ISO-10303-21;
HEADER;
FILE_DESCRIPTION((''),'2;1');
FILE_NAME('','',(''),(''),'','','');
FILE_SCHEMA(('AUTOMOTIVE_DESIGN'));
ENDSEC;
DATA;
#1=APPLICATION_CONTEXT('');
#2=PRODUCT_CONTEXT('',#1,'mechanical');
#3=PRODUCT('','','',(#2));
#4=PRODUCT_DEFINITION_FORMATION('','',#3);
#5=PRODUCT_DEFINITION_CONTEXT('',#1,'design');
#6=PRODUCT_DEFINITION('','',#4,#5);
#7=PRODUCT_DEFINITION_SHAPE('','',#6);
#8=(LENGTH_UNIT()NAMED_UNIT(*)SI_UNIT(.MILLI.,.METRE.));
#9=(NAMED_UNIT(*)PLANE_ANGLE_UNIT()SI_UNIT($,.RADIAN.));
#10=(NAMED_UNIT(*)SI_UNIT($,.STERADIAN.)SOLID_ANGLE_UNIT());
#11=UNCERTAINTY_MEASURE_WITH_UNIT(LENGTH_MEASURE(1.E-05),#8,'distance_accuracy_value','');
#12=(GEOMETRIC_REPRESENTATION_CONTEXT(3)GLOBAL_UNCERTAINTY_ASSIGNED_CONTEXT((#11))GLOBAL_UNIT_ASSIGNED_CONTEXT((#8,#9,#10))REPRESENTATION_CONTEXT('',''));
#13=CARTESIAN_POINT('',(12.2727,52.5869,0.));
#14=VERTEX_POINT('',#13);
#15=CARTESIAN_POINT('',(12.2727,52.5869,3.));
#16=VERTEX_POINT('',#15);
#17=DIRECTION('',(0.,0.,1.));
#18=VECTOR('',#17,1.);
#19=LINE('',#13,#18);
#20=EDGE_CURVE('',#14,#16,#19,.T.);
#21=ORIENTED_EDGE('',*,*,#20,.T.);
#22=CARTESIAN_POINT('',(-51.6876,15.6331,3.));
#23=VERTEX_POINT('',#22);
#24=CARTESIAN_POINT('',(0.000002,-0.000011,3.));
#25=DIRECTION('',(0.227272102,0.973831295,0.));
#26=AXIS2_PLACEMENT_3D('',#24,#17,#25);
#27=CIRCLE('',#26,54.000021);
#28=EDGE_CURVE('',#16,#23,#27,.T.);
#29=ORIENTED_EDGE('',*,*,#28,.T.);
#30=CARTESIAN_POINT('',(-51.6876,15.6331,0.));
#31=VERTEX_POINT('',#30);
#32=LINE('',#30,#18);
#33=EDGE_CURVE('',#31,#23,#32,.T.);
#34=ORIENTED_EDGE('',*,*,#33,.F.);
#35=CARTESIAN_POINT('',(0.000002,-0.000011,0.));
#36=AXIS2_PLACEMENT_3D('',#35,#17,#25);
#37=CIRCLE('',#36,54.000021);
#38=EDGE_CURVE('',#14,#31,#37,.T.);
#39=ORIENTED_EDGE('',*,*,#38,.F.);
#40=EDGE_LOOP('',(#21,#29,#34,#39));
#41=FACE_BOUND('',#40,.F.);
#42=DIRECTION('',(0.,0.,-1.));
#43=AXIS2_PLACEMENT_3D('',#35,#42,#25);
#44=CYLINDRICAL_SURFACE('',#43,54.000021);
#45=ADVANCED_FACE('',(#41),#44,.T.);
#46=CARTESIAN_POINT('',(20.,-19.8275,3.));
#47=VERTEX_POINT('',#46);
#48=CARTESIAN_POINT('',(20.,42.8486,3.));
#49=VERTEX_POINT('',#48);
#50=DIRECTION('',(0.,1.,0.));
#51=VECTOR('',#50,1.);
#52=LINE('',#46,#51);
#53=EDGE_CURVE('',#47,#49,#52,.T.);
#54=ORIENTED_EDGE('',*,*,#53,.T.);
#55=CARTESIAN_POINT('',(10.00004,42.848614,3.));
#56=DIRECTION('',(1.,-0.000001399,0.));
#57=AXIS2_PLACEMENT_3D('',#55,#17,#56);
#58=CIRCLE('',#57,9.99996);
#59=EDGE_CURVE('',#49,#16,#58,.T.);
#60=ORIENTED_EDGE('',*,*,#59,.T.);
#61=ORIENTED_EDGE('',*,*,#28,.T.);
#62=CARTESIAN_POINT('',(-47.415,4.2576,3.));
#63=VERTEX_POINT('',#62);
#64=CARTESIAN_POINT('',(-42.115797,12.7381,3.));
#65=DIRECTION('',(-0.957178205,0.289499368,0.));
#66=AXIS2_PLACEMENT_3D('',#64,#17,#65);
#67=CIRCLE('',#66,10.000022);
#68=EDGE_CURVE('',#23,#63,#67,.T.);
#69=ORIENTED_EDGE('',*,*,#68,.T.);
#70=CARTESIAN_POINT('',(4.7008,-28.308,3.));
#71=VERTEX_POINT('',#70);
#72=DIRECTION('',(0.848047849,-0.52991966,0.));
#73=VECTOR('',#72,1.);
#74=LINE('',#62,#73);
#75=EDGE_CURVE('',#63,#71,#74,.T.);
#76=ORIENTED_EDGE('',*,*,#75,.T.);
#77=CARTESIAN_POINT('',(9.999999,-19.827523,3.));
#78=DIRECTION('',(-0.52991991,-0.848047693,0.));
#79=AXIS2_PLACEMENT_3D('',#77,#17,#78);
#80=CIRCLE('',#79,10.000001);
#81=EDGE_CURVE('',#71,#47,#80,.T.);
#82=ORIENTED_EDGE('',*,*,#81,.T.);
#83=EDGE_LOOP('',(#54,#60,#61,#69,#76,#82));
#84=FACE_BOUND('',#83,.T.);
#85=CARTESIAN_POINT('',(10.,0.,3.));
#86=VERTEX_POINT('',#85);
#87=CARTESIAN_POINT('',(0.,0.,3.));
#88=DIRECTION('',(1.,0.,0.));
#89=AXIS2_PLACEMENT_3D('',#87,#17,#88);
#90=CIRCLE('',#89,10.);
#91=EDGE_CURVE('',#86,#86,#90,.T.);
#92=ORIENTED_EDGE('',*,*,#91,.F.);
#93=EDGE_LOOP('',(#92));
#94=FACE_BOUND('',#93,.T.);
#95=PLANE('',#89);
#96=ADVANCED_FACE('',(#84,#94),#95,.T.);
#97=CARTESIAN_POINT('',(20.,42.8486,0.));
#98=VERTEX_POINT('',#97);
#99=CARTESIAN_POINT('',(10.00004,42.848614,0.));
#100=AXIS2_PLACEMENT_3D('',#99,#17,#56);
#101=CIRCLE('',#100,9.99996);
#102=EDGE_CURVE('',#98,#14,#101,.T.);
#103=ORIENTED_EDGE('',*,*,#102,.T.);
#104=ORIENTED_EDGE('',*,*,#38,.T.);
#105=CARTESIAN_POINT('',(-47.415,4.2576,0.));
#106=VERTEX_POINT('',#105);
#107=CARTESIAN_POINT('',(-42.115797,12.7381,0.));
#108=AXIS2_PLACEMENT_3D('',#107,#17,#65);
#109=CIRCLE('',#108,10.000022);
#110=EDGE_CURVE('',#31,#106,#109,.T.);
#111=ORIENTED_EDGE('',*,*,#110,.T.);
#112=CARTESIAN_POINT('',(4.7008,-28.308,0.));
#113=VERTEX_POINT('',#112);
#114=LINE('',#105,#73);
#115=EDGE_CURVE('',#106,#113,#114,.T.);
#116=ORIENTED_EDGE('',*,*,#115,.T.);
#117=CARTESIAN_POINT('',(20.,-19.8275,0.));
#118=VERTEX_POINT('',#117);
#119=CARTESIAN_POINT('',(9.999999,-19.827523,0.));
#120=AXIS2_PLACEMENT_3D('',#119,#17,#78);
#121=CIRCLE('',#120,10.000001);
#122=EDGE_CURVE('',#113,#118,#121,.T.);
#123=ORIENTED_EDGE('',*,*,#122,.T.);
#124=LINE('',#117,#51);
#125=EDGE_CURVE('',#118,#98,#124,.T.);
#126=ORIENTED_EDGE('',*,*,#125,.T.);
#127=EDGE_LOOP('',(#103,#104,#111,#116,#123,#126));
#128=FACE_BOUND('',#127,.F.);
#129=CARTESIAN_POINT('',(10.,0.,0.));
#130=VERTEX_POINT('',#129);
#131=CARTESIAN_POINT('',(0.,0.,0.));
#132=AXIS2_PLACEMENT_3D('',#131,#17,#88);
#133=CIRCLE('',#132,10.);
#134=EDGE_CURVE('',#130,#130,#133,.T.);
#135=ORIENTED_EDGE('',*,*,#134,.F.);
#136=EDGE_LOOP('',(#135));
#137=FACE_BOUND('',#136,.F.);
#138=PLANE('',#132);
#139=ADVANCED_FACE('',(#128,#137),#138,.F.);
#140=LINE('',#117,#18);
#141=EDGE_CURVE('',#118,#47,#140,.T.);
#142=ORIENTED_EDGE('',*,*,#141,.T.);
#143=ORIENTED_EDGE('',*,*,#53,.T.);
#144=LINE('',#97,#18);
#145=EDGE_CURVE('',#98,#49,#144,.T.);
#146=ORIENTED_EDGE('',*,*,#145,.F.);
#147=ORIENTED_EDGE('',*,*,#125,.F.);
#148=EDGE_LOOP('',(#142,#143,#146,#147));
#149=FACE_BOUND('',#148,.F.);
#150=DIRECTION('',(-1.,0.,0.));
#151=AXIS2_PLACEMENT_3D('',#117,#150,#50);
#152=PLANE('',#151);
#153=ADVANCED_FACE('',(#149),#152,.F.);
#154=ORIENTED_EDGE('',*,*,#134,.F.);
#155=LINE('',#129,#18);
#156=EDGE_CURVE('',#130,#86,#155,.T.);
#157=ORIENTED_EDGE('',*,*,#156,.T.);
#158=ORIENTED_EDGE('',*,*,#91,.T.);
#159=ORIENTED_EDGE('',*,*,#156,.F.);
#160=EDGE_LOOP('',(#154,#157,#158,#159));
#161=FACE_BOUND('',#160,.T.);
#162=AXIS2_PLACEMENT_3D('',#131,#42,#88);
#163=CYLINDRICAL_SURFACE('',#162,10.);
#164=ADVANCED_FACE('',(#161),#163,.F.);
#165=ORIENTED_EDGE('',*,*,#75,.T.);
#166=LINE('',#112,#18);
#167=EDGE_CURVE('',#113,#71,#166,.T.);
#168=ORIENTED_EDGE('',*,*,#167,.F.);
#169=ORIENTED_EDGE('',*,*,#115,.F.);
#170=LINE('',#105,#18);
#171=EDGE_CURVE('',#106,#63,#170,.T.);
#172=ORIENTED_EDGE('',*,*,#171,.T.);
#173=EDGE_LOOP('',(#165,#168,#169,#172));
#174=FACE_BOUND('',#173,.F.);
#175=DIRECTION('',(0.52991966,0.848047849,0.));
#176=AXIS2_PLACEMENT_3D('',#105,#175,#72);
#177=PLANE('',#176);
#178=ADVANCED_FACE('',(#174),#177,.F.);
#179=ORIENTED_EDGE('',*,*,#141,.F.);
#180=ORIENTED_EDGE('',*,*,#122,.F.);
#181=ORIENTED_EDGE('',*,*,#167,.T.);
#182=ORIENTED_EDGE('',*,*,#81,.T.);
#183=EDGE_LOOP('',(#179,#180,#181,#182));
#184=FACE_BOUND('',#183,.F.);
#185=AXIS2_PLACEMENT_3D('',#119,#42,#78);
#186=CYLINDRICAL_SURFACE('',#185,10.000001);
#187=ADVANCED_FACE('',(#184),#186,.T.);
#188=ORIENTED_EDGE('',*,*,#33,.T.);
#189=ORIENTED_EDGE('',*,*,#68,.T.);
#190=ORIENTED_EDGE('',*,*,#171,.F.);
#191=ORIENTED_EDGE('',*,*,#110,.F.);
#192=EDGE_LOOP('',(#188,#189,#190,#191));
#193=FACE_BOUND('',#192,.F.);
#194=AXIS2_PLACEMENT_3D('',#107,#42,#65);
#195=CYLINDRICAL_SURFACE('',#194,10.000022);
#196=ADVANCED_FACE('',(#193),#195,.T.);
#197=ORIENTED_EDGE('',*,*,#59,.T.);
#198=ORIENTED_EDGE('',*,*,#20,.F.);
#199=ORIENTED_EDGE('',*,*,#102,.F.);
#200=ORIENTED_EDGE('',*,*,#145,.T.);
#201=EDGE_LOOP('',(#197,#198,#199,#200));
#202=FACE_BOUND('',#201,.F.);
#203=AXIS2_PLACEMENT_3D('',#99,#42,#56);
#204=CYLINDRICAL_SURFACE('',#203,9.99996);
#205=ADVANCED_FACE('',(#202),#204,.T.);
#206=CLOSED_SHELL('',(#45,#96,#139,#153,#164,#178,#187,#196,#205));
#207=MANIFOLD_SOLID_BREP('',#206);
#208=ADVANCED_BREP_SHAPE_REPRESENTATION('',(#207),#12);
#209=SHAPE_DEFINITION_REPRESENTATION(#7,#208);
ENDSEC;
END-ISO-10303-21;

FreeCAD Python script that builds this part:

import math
import FreeCAD as App
import Part
import Sketcher
Q = App.Units.Quantity

doc = App.newDocument("Part")
params = doc.addObject("Spreadsheet::Sheet", "Params")
for row, (alias, value) in enumerate([
    ("sketch1_diameter", "20 mm"),
    ("sketch1_radius", "54 mm"),
    ("pad1_length", "3 mm"),
], start=1):
    params.set(f"A{row}", alias)
    params.set(f"B{row}", "=" + value)
    params.setAlias(f"B{row}", alias)

body = doc.addObject("PartDesign::Body", "Body")

# Sketch on XY plane
sketch1 = body.newObject("Sketcher::SketchObject", "Sketch")
sketch1.AttachmentSupport = (doc.getObject("XY_Plane"), [""])
sketch1.MapMode = "FlatFace"
sketch1.addGeometry(Part.ArcOfCircle(Part.Circle(App.Vector(-42, 13, 0), App.Vector(0, 0, 1), 10), math.radians(163), math.radians(238)), False)
sketch1.addGeometry(Part.LineSegment(App.Vector(-47, 4, 0), App.Vector(5, -28, 0)), False)
sketch1.addGeometry(Part.ArcOfCircle(Part.Circle(App.Vector(10, -20, 0), App.Vector(0, 0, 1), 10), math.radians(-122), math.radians(0)), False)
sketch1.addGeometry(Part.LineSegment(App.Vector(20, -20, 0), App.Vector(20, 43, 0)), False)
sketch1.addGeometry(Part.ArcOfCircle(Part.Circle(App.Vector(10, 43, 0), App.Vector(0, 0, 1), 10), math.radians(0), math.radians(77)), False)
sketch1.addGeometry(Part.ArcOfCircle(Part.Circle(App.Vector(0, 0, 0), App.Vector(0, 0, 1), 54), math.radians(77), math.radians(163)), False)
sketch1.addGeometry(Part.Circle(App.Vector(0, 0, 0), App.Vector(0, 0, 1), 10), False)
sketch1.addConstraint(Sketcher.Constraint("Tangent", 0, 2, 1, 1))
sketch1.addConstraint(Sketcher.Constraint("Tangent", 1, 2, 2, 1))
sketch1.addConstraint(Sketcher.Constraint("Tangent", 2, 2, 3, 1))
sketch1.addConstraint(Sketcher.Constraint("Tangent", 3, 2, 4, 1))
sketch1.addConstraint(Sketcher.Constraint("Tangent", 4, 2, 5, 1))
sketch1.addConstraint(Sketcher.Constraint("Tangent", 5, 2, 0, 1))
sketch1.addConstraint(Sketcher.Constraint("Vertical", 3))
sketch1.addConstraint(Sketcher.Constraint("Coincident", 5, 3, -1, 1))
sketch1.addConstraint(Sketcher.Constraint("Coincident", 6, 3, -1, 1))
sketch1.addConstraint(Sketcher.Constraint("Equal", 0, 2))
sketch1.addConstraint(Sketcher.Constraint("Equal", 2, 4))
sketch1.addConstraint(Sketcher.Constraint("Equal", 4, 6))
sketch1.addConstraint(Sketcher.Constraint("Diameter", 6, 20.0))
sketch1.addConstraint(Sketcher.Constraint("Radius", 5, 54.0))
sketch1.addConstraint(Sketcher.Constraint("DistanceX", -1, 1, 2, 3, 10.0))
sketch1.addConstraint(Sketcher.Constraint("Angle", 1, Q("-32 deg")))
sketch1.addConstraint(Sketcher.Constraint("DistanceY", 3, 1, 3, 2, 62.676))
sketch1.setExpression("Constraints[12]", "Params.sketch1_diameter")
sketch1.setExpression("Constraints[13]", "Params.sketch1_radius")
pad1 = body.newObject("PartDesign::Pad", "Pad")
pad1.Profile = sketch1
pad1.setExpression("Length", "Params.pad1_length")

doc.recompute()
